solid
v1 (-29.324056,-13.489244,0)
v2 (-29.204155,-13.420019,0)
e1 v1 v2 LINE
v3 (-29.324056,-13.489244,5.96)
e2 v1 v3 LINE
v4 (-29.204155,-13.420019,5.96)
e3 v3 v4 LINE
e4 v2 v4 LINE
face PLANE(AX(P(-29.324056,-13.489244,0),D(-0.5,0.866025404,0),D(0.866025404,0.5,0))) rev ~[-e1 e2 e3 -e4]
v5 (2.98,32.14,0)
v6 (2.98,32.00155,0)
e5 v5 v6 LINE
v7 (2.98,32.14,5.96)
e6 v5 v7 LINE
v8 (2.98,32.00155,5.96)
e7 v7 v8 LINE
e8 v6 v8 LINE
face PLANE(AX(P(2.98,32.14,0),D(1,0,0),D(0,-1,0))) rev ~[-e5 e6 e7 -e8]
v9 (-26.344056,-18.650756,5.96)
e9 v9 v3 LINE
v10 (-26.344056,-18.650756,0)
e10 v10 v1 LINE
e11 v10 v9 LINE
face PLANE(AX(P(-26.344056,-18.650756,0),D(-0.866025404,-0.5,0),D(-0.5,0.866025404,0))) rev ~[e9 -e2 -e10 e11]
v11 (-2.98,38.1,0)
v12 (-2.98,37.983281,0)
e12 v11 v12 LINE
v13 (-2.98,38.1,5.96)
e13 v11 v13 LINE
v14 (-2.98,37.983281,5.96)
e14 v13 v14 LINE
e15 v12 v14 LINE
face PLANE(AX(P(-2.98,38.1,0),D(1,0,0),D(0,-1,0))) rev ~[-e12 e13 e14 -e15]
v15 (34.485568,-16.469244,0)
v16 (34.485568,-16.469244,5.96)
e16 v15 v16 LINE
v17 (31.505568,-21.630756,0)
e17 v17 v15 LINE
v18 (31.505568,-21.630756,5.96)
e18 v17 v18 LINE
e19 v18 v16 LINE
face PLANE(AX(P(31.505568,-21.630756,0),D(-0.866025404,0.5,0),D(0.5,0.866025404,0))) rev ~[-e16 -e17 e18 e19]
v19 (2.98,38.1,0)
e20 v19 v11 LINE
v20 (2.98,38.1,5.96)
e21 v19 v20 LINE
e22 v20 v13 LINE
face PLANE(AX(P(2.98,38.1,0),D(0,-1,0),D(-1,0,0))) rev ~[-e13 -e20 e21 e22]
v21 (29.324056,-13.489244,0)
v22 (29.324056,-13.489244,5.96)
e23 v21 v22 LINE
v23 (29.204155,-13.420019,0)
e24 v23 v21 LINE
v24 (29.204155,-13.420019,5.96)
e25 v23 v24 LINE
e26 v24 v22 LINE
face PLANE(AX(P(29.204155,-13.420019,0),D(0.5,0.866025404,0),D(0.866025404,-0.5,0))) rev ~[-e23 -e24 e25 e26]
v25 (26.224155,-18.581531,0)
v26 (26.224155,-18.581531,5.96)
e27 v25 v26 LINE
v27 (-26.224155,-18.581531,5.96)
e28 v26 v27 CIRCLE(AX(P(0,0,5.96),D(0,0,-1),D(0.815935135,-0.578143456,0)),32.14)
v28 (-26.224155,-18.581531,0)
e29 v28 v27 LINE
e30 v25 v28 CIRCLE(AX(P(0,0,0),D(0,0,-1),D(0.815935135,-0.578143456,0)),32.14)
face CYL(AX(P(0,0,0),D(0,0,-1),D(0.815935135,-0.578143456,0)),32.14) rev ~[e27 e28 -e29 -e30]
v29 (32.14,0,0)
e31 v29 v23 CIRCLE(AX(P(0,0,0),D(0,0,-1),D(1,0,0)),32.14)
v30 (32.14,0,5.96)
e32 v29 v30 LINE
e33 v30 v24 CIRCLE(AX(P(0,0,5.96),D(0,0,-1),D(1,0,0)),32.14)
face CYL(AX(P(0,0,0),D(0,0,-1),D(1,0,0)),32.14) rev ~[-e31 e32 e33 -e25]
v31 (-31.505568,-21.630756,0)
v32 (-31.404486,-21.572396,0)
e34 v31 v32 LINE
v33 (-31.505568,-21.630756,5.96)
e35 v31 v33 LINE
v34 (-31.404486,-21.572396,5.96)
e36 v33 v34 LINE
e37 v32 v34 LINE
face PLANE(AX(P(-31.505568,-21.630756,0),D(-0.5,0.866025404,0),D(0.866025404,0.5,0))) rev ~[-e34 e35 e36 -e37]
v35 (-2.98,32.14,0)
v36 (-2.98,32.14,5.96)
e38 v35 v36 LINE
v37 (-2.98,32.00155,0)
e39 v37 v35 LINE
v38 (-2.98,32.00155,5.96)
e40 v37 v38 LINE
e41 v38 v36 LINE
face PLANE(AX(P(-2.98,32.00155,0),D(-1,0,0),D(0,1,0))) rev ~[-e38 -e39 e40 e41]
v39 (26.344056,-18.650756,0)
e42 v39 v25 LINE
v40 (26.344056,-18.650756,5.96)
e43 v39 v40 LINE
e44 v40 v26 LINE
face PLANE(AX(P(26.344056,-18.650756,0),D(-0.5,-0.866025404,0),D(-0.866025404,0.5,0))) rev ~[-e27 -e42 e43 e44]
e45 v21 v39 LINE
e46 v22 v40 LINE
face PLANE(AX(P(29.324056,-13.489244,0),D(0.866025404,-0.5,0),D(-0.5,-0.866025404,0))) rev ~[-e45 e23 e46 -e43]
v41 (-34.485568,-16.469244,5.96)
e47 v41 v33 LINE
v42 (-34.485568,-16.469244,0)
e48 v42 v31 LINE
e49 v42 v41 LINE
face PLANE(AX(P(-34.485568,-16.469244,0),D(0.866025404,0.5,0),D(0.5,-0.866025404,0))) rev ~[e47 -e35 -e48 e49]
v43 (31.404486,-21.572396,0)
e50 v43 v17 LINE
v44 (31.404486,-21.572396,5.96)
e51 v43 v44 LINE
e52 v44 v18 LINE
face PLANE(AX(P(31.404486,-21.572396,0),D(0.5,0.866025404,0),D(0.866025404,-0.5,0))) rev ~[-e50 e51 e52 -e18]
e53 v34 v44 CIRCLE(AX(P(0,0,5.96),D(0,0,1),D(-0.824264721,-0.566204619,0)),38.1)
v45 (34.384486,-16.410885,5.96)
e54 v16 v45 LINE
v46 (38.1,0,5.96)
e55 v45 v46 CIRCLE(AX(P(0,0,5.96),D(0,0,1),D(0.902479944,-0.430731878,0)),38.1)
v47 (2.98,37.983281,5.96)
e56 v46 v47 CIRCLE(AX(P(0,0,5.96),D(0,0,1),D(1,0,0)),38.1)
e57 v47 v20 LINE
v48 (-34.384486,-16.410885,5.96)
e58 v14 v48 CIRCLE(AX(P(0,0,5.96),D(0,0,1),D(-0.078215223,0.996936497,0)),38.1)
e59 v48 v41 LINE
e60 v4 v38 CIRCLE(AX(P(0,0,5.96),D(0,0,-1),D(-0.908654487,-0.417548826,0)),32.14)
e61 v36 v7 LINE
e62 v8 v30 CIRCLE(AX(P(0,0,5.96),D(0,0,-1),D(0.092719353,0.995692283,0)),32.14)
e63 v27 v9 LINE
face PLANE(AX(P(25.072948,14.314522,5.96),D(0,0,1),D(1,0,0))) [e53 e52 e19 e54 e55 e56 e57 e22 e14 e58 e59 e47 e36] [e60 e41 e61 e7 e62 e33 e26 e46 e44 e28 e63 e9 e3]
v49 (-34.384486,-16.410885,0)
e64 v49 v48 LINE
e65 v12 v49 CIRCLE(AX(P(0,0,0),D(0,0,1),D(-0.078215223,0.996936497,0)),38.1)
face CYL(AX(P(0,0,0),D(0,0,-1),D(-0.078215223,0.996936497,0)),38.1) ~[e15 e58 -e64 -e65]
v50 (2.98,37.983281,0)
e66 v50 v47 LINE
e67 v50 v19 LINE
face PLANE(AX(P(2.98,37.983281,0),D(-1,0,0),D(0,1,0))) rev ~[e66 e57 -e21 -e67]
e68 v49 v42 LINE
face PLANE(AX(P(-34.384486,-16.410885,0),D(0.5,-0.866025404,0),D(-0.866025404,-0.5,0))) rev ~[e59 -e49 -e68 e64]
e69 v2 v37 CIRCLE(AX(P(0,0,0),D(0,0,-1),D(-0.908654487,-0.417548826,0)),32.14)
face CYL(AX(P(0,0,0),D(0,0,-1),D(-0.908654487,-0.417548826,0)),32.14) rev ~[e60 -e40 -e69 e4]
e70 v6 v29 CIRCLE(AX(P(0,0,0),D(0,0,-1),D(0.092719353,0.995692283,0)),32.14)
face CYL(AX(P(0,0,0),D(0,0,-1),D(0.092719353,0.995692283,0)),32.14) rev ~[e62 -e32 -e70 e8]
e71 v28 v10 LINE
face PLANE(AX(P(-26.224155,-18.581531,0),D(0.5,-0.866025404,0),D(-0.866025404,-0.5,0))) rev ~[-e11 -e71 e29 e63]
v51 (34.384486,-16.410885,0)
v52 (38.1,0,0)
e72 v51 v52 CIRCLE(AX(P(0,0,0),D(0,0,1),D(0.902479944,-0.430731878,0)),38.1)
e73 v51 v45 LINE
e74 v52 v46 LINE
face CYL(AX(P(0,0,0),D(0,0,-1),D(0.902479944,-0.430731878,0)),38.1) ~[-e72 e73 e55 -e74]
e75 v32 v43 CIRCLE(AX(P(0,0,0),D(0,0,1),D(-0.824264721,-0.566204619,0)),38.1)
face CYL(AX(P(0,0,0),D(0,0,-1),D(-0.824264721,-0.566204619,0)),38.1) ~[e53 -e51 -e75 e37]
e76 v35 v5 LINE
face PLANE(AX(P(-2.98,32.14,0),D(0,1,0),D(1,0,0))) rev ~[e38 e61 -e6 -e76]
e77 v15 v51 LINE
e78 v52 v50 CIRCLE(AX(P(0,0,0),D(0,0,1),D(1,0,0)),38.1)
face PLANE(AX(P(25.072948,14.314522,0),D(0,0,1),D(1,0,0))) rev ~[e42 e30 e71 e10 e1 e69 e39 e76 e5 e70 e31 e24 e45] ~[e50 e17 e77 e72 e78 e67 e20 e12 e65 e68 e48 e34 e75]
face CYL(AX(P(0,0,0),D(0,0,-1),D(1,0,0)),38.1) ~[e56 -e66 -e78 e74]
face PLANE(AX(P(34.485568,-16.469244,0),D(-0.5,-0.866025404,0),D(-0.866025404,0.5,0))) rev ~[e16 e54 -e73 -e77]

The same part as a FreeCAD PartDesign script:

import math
import FreeCAD as App
import Part
import Sketcher
from FreeCAD import Vector
Q = App.Units.Quantity

doc = App.newDocument("Part")
body = doc.addObject("PartDesign::Body", "Body")

# Sketch on XY plane
sketch1 = body.newObject("Sketcher::SketchObject", "Sketch")
sketch1.AttachmentSupport = (doc.getObject("XY_Plane"), [""])
sketch1.MapMode = "FlatFace"
sketch1.addGeometry([
    Part.ArcOfCircle(Part.Circle(Vector(0, 0, 0), Vector(0, 0, 1), 38.1), math.radians(-25.514016), math.radians(0)),  # 0
    Part.ArcOfCircle(Part.Circle(Vector(0, 0, 0), Vector(0, 0, 1), 38.1), math.radians(0), math.radians(85.514016)),  # 1
    Part.LineSegment(Vector(2.98, 37.983281, 0), Vector(2.98, 38.1, 0)),  # 2
    Part.LineSegment(Vector(2.98, 38.1, 0), Vector(-2.98, 38.1, 0)),  # 3
    Part.LineSegment(Vector(-2.98, 38.1, 0), Vector(-2.98, 37.983281, 0)),  # 4
    Part.ArcOfCircle(Part.Circle(Vector(0, 0, 0), Vector(0, 0, 1), 38.1), math.radians(94.485984), math.radians(205.514016)),  # 5
    Part.LineSegment(Vector(-34.384486, -16.410885, 0), Vector(-34.485568, -16.469244, 0)),  # 6
    Part.LineSegment(Vector(-34.485568, -16.469244, 0), Vector(-31.505568, -21.630756, 0)),  # 7
    Part.LineSegment(Vector(-31.505568, -21.630756, 0), Vector(-31.404486, -21.572396, 0)),  # 8
    Part.ArcOfCircle(Part.Circle(Vector(0, 0, 0), Vector(0, 0, 1), 38.1), math.radians(-145.514016), math.radians(-34.485984)),  # 9
    Part.LineSegment(Vector(31.404486, -21.572396, 0), Vector(31.505568, -21.630756, 0)),  # 10
    Part.LineSegment(Vector(31.505568, -21.630756, 0), Vector(34.485568, -16.469244, 0)),  # 11
    Part.LineSegment(Vector(34.485568, -16.469244, 0), Vector(34.384486, -16.410885, 0)),  # 12
    Part.LineSegment(Vector(-29.324056, -13.489244, 0), Vector(-29.204155, -13.420019, 0)),  # 13
    Part.ArcOfCircle(Part.Circle(Vector(0, 0, 0), Vector(0, 0, 1), 32.14), math.radians(95.320069), math.radians(204.679931)),  # 14
    Part.LineSegment(Vector(-2.98, 32.00155, 0), Vector(-2.98, 32.14, 0)),  # 15
    Part.LineSegment(Vector(-2.98, 32.14, 0), Vector(2.98, 32.14, 0)),  # 16
    Part.LineSegment(Vector(2.98, 32.14, 0), Vector(2.98, 32.00155, 0)),  # 17
    Part.ArcOfCircle(Part.Circle(Vector(0, 0, 0), Vector(0, 0, 1), 32.14), math.radians(0), math.radians(84.679931)),  # 18
    Part.ArcOfCircle(Part.Circle(Vector(0, 0, 0), Vector(0, 0, 1), 32.14), math.radians(-24.679931), math.radians(0)),  # 19
    Part.LineSegment(Vector(29.204155, -13.420019, 0), Vector(29.324056, -13.489244, 0)),  # 20
    Part.LineSegment(Vector(29.324056, -13.489244, 0), Vector(26.344056, -18.650756, 0)),  # 21
    Part.LineSegment(Vector(26.344056, -18.650756, 0), Vector(26.224155, -18.581531, 0)),  # 22
    Part.ArcOfCircle(Part.Circle(Vector(0, 0, 0), Vector(0, 0, 1), 32.14), math.radians(-144.679931), math.radians(-35.320069)),  # 23
    Part.LineSegment(Vector(-26.224155, -18.581531, 0), Vector(-26.344056, -18.650756, 0)),  # 24
    Part.LineSegment(Vector(-26.344056, -18.650756, 0), Vector(-29.324056, -13.489244, 0)),  # 25
], False)
sketch1.addConstraint([
    Sketcher.Constraint("Tangent", 0, 2, 1, 1),
    Sketcher.Constraint("Coincident", 1, 2, 2, 1),
    Sketcher.Constraint("Coincident", 2, 2, 3, 1),
    Sketcher.Constraint("Coincident", 3, 2, 4, 1),
    Sketcher.Constraint("Coincident", 4, 2, 5, 1),
    Sketcher.Constraint("Coincident", 5, 2, 6, 1),
    Sketcher.Constraint("Coincident", 6, 2, 7, 1),
    Sketcher.Constraint("Coincident", 7, 2, 8, 1),
    Sketcher.Constraint("Coincident", 8, 2, 9, 1),
    Sketcher.Constraint("Coincident", 9, 2, 10, 1),
    Sketcher.Constraint("Coincident", 10, 2, 11, 1),
    Sketcher.Constraint("Coincident", 11, 2, 12, 1),
    Sketcher.Constraint("Coincident", 12, 2, 0, 1),
    Sketcher.Constraint("Coincident", 13, 2, 14, 2),
    Sketcher.Constraint("Coincident", 14, 1, 15, 1),
    Sketcher.Constraint("Coincident", 15, 2, 16, 1),
    Sketcher.Constraint("Coincident", 16, 2, 17, 1),
    Sketcher.Constraint("Coincident", 17, 2, 18, 2),
    Sketcher.Constraint("Tangent", 18, 1, 19, 2),
    Sketcher.Constraint("Coincident", 19, 1, 20, 1),
    Sketcher.Constraint("Coincident", 20, 2, 21, 1),
    Sketcher.Constraint("Coincident", 21, 2, 22, 1),
    Sketcher.Constraint("Coincident", 22, 2, 23, 2),
    Sketcher.Constraint("Coincident", 23, 1, 24, 1),
    Sketcher.Constraint("Coincident", 24, 2, 25, 1),
    Sketcher.Constraint("Coincident", 25, 2, 13, 1),
    Sketcher.Constraint("Vertical", 2),
    Sketcher.Constraint("Horizontal", 3),
    Sketcher.Constraint("Vertical", 4),
    Sketcher.Constraint("Vertical", 15),
    Sketcher.Constraint("Horizontal", 16),
    Sketcher.Constraint("Vertical", 17),
    Sketcher.Constraint("Coincident", 0, 3, -1, 1),
    Sketcher.Constraint("Coincident", 5, 3, -1, 1),
    Sketcher.Constraint("Coincident", 9, 3, -1, 1),
    Sketcher.Constraint("Coincident", 14, 3, -1, 1),
    Sketcher.Constraint("Coincident", 18, 3, -1, 1),
    Sketcher.Constraint("Coincident", 23, 3, -1, 1),
    Sketcher.Constraint("Equal", 0, 1),
    Sketcher.Constraint("Equal", 1, 5),
    Sketcher.Constraint("Equal", 5, 9),
    Sketcher.Constraint("Equal", 14, 18),
    Sketcher.Constraint("Equal", 18, 19),
    Sketcher.Constraint("Equal", 19, 23),
    Sketcher.Constraint("Symmetric", 7, 2, 10, 2, -2),
    Sketcher.Constraint("Symmetric", 6, 2, 11, 2, -2),
    Sketcher.Constraint("Symmetric", 21, 2, 24, 2, -2),
    Sketcher.Constraint("Symmetric", 20, 2, 25, 2, -2),
    Sketcher.Constraint("PointOnObject", 0, 2, -1),
    Sketcher.Constraint("PointOnObject", 18, 1, -1),
    Sketcher.Constraint("Perpendicular", 6, 7),
    Sketcher.Constraint("Perpendicular", 7, 8),
    Sketcher.Constraint("Perpendicular", 10, 11),
    Sketcher.Constraint("Perpendicular", 11, 12),
    Sketcher.Constraint("Parallel", 8, 13),
    Sketcher.Constraint("Parallel", 12, 20),
    Sketcher.Constraint("Perpendicular", 20, 21),
    Sketcher.Constraint("Perpendicular", 21, 22),
    Sketcher.Constraint("Parallel", 13, 24),
    Sketcher.Constraint("Horizontal", 1, 2, 4, 2),
    Sketcher.Constraint("Horizontal", 14, 1, 17, 2),
    Sketcher.Constraint("Vertical", 4, 2, 14, 1),
    Sketcher.Constraint("Equal", 6, 8),
    Sketcher.Constraint("Equal", 11, 21),
    Sketcher.Constraint("Equal", 20, 22),
    Sketcher.Constraint("Radius", 0, Q("1.5 in")),
    Sketcher.Constraint("Angle", 7, Q("-60 deg")),
    Sketcher.Constraint("DistanceY", -1, 1, 2, 2, Q("1.5 in")),
    Sketcher.Constraint("Radius", 14, Q("32.14 mm")),
    Sketcher.Constraint("DistanceX", 3, 2, 3, 1, Q("5.96 mm")),
    Sketcher.Constraint("Distance", 7, Q("5.96 mm")),
    Sketcher.Constraint("DistanceY", 15, 1, 15, 2, Q("0.13845 mm")),
    Sketcher.Constraint("DistanceX", 19, 1, 20, 2, Q("0.119901 mm")),
    Sketcher.Constraint("DistanceY", 11, 2, 20, 2, Q("2.98 mm")),
])
pad1 = body.newObject("PartDesign::Pad", "Pad")
pad1.Profile = sketch1
pad1.Length = 5.96

doc.recompute()
